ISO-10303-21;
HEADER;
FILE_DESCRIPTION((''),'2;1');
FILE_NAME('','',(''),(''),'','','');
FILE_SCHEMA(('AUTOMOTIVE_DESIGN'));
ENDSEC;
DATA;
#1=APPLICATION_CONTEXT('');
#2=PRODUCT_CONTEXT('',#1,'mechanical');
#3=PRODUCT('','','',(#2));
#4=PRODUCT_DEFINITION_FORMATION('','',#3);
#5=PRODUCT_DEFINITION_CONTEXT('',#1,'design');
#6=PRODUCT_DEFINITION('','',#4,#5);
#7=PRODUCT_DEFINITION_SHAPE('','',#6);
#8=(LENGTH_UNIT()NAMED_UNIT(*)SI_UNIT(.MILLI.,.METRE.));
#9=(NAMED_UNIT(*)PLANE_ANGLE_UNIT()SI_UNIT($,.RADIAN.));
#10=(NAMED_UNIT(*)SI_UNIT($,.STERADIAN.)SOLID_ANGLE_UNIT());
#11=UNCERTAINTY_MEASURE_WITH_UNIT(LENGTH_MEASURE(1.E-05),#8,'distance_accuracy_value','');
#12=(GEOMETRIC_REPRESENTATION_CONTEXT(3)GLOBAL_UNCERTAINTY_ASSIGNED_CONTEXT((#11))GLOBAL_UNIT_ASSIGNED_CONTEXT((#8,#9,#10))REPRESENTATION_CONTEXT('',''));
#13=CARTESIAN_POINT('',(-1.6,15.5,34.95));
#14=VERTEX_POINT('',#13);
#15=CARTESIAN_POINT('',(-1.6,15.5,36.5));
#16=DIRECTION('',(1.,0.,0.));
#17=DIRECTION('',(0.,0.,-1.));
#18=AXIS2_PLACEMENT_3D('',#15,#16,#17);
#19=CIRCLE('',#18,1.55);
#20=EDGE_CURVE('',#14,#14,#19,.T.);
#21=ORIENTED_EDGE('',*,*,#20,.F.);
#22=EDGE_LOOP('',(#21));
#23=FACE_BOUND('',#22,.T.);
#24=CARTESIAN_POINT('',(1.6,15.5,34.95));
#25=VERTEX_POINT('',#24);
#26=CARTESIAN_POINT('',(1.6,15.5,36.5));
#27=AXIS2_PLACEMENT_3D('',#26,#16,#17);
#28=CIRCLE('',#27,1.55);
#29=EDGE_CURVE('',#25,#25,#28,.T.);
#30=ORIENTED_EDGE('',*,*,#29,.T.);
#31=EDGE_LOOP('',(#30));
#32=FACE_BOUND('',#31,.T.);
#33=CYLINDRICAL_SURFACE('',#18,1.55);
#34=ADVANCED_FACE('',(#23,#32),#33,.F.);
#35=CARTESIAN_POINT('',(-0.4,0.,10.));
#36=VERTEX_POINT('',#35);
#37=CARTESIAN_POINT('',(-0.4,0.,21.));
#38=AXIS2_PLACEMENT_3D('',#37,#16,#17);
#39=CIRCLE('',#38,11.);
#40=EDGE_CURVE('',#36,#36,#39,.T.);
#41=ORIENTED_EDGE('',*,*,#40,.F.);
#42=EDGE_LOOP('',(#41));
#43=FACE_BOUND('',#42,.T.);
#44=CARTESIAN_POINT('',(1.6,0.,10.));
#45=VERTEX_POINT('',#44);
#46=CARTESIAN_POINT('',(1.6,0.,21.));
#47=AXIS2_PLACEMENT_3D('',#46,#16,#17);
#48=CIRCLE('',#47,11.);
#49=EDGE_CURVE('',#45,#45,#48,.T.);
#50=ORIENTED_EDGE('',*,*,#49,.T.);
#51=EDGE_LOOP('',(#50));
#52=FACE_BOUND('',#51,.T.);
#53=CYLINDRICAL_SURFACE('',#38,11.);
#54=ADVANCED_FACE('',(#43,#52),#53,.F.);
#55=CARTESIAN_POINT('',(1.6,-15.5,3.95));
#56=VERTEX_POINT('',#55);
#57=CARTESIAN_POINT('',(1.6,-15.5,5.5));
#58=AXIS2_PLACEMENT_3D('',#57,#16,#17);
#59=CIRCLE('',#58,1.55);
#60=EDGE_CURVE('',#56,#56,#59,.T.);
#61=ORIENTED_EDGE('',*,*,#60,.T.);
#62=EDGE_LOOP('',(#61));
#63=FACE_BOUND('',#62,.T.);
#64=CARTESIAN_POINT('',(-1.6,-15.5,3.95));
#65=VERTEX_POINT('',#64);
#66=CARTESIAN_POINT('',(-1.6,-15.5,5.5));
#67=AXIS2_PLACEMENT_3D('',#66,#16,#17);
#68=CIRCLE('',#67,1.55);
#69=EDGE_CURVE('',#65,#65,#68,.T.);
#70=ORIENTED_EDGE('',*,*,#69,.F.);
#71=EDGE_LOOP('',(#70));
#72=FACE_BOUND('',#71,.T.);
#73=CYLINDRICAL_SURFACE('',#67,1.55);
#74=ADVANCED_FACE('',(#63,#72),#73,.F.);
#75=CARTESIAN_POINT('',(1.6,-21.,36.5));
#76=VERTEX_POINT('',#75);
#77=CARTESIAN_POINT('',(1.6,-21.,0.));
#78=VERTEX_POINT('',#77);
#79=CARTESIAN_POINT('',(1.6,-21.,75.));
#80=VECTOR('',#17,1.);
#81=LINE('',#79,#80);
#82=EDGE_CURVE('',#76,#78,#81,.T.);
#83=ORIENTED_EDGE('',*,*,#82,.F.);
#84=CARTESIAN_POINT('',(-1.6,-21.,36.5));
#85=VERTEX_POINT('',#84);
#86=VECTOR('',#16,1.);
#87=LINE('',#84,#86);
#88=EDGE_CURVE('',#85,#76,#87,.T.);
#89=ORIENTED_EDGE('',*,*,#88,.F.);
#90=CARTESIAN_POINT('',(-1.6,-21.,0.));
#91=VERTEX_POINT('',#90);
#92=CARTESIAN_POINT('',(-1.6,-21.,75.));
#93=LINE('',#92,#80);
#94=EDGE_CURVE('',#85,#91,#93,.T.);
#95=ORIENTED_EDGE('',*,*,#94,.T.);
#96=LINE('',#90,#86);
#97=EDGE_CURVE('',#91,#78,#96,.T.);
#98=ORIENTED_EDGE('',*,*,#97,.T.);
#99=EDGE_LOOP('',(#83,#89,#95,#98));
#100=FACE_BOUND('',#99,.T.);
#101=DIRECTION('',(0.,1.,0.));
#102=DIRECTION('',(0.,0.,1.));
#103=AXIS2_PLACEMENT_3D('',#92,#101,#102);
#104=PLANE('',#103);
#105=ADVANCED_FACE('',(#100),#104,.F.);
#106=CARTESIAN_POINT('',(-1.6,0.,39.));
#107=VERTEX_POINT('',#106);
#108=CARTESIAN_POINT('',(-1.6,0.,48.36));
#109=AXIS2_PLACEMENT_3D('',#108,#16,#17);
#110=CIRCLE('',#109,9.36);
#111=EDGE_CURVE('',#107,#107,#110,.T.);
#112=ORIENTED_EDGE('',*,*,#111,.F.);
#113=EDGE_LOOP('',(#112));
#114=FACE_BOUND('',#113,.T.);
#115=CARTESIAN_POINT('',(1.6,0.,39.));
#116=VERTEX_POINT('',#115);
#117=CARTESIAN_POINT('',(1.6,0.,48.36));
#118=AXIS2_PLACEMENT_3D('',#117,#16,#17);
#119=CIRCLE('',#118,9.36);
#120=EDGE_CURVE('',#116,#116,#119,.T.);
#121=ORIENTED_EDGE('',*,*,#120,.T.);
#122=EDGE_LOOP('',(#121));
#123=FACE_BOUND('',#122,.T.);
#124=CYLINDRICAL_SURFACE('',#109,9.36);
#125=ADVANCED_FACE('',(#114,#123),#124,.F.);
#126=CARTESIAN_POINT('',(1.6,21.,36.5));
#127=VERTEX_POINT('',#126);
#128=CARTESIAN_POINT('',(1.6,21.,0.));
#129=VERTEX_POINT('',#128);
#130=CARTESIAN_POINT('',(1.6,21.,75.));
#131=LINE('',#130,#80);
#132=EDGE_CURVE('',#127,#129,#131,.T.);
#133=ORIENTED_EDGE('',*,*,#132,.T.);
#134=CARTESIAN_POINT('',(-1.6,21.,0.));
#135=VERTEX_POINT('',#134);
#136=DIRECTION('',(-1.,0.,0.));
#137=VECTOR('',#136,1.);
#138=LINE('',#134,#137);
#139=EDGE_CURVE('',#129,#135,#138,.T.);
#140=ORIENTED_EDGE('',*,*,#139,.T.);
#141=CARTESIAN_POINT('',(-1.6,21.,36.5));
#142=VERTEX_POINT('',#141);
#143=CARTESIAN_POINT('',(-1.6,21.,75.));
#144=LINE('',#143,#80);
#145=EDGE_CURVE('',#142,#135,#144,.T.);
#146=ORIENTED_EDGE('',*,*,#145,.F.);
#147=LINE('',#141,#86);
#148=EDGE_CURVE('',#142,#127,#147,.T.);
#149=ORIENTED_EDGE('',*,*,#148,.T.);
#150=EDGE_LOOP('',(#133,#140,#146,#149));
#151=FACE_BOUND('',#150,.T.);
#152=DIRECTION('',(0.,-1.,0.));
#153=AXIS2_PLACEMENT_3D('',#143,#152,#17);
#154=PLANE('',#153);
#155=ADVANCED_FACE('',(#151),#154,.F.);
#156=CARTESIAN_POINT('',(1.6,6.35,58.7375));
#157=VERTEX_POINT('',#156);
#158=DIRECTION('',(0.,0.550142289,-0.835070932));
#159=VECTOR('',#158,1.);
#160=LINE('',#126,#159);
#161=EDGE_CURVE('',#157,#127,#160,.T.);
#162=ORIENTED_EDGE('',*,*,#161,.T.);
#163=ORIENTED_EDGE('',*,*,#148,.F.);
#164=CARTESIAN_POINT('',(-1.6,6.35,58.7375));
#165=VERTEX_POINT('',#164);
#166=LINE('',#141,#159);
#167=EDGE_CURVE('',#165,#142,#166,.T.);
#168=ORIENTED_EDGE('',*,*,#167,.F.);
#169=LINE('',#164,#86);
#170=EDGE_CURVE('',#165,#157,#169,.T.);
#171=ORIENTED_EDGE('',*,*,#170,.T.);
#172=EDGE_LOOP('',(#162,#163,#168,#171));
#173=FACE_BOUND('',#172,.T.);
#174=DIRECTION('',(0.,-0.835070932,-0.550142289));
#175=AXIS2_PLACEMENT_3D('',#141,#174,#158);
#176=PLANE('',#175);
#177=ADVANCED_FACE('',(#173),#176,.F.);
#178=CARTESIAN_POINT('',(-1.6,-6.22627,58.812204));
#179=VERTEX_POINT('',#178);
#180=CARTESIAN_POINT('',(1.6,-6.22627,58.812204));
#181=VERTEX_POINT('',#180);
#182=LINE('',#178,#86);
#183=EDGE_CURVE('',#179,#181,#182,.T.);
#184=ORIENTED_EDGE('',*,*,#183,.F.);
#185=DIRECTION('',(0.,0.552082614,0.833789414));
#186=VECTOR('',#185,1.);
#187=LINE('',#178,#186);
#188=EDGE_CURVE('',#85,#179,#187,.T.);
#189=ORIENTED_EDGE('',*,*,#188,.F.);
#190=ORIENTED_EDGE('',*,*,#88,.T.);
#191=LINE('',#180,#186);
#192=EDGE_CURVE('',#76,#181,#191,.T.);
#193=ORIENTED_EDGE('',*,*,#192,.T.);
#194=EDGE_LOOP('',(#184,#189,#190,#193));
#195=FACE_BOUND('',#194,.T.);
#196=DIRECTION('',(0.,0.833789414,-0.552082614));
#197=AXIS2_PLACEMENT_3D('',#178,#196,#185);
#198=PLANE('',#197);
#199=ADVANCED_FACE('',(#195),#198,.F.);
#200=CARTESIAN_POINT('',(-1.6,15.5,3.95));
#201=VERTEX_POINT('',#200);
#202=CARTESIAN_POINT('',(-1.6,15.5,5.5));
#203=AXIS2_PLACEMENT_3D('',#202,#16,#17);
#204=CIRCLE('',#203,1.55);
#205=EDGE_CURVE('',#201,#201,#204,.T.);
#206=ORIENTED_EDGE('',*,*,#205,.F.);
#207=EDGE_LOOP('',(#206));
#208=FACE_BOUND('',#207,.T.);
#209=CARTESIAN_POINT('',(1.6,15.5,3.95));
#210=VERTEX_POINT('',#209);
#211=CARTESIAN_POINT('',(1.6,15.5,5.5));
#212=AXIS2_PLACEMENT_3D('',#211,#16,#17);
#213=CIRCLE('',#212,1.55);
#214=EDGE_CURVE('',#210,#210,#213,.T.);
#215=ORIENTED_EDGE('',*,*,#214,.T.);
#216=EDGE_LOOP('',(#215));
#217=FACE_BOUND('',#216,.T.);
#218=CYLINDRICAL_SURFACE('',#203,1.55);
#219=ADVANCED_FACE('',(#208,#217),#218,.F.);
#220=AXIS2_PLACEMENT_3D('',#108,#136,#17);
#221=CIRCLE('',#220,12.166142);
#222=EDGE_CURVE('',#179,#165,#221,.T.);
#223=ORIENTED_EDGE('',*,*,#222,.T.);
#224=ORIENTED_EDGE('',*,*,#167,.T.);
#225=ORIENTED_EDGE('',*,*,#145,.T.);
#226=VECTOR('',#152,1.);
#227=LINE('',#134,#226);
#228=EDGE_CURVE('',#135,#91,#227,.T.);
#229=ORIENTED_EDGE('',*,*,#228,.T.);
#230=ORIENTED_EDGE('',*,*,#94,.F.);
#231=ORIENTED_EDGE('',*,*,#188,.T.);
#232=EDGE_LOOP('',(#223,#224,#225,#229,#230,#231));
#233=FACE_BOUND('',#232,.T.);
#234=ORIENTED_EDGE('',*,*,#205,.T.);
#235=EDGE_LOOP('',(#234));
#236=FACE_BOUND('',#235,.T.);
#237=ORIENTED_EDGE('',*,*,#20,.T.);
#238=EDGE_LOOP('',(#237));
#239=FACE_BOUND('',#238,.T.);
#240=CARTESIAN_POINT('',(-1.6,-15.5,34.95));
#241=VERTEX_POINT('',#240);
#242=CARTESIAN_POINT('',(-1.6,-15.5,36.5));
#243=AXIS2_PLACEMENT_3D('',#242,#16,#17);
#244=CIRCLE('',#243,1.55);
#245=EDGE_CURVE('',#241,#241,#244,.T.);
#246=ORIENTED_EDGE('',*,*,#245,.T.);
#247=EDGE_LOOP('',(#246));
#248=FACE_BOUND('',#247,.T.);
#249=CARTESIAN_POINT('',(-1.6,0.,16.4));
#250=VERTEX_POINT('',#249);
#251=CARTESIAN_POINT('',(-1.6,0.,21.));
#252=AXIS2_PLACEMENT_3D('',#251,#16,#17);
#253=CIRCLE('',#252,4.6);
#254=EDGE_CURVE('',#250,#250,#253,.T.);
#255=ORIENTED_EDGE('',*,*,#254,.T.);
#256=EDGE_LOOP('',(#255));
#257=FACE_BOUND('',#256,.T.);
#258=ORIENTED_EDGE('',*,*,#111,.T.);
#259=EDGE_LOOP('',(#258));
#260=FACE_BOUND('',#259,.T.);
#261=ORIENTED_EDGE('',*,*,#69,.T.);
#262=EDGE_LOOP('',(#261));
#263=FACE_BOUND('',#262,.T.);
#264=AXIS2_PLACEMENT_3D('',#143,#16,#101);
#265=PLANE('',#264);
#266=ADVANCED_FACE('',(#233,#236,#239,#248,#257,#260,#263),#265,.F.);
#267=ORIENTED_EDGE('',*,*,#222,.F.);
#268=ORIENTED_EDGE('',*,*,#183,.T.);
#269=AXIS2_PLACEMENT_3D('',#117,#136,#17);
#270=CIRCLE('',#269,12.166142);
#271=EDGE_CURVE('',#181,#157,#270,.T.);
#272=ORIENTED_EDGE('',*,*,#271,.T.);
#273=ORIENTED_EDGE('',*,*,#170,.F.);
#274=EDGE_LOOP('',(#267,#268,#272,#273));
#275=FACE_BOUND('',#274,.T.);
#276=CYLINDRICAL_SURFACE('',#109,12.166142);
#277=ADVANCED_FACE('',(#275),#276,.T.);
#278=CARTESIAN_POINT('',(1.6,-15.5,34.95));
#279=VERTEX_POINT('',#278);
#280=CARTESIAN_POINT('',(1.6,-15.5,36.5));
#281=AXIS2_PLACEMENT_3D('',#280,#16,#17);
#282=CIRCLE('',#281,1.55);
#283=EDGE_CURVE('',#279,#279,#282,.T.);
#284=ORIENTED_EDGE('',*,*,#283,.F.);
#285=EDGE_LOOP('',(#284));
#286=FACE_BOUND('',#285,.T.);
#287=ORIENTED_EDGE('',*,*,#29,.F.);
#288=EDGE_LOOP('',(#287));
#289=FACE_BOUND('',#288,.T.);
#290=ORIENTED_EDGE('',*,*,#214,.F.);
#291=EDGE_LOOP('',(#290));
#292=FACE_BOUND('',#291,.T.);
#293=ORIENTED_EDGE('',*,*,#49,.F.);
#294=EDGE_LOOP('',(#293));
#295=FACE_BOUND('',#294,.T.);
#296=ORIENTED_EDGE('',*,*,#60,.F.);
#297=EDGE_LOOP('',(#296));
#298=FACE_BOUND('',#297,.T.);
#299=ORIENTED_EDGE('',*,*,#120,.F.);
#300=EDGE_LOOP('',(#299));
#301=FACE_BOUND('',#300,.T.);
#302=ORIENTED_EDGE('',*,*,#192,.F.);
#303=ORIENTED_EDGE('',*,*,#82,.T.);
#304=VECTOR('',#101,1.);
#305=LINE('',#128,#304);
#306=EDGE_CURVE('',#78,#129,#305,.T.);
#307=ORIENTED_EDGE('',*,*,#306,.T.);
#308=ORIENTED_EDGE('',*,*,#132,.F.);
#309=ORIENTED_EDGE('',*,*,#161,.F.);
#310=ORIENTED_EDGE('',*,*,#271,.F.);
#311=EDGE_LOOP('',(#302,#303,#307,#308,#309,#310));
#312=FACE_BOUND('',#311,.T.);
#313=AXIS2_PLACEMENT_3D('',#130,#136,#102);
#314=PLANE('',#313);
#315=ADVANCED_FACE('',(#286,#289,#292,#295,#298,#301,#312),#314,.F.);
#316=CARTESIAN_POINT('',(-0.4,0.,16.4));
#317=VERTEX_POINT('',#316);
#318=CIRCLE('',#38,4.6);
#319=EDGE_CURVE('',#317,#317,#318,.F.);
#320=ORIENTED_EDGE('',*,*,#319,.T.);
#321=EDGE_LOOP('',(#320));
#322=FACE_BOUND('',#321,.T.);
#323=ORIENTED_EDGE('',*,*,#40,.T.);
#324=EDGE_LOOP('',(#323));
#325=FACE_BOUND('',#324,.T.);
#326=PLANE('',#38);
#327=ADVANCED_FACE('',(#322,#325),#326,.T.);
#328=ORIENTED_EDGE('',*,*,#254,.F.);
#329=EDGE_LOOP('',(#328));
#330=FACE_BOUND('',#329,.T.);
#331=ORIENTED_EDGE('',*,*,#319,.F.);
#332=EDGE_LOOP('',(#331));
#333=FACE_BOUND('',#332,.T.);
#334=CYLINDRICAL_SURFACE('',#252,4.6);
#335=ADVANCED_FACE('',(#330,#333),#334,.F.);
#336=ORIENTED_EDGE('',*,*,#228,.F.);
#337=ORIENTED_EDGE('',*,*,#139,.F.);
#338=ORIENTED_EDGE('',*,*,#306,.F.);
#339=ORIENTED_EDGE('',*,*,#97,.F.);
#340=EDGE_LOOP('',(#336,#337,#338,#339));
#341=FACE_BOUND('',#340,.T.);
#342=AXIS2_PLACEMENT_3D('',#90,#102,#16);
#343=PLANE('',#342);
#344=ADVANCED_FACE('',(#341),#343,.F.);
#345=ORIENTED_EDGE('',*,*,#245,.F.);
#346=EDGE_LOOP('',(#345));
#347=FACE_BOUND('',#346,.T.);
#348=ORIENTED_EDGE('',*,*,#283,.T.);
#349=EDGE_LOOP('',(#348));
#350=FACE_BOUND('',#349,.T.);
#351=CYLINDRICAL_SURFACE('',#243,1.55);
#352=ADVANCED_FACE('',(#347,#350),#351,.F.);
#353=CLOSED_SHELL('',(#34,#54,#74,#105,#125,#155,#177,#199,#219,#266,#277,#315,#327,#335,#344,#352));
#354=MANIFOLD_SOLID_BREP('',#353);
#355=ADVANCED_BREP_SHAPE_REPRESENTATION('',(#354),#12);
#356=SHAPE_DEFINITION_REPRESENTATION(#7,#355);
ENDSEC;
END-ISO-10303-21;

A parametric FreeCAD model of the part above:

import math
import FreeCAD as App
import Part
import Sketcher
Q = App.Units.Quantity

doc = App.newDocument("Part")
body = doc.addObject("PartDesign::Body", "Body")

sketch1 = doc.addObject("Sketcher::SketchObject", "Sketch")
body.addObject(sketch1)
sketch1.AttachmentSupport = (doc.XY_Plane, [""])
sketch1.MapMode = "FlatFace"
sketch1.addGeometry(Part.LineSegment(App.Vector(-1.6, 21, 0), App.Vector(-1.6, -21, 0)), False)
sketch1.addGeometry(Part.LineSegment(App.Vector(-1.6, -21, 0), App.Vector(1.6, -21, 0)), False)
sketch1.addGeometry(Part.LineSegment(App.Vector(1.6, -21, 0), App.Vector(1.6, 21, 0)), False)
sketch1.addGeometry(Part.LineSegment(App.Vector(1.6, 21, 0), App.Vector(-1.6, 21, 0)), False)
sketch1.addConstraint(Sketcher.Constraint("Coincident", 0, 2, 1, 1))
sketch1.addConstraint(Sketcher.Constraint("Coincident", 1, 2, 2, 1))
sketch1.addConstraint(Sketcher.Constraint("Coincident", 2, 2, 3, 1))
sketch1.addConstraint(Sketcher.Constraint("Coincident", 3, 2, 0, 1))
sketch1.addConstraint(Sketcher.Constraint("Vertical", 0))
sketch1.addConstraint(Sketcher.Constraint("Horizontal", 1))
sketch1.addConstraint(Sketcher.Constraint("Vertical", 2))
sketch1.addConstraint(Sketcher.Constraint("Horizontal", 3))
sketch1.addConstraint(Sketcher.Constraint("Symmetric", 0, 2, 2, 2, -1, 1))
sketch1.addConstraint(Sketcher.Constraint("DistanceY", 0, 2, 0, 1, Q("42 mm")))
sketch1.addConstraint(Sketcher.Constraint("DistanceX", 1, 1, 1, 2, Q("3.2 mm")))
pad1 = doc.addObject("PartDesign::Pad", "Pad")
body.addObject(pad1)
pad1.Profile = sketch1
pad1.Length = 75

sketch2 = doc.addObject("Sketcher::SketchObject", "Sketch001")
body.addObject(sketch2)
sketch2.AttachmentSupport = (doc.YZ_Plane, [""])
sketch2.MapMode = "FlatFace"
sketch2.addGeometry(Part.Circle(App.Vector(15.5, 5.5, 0), App.Vector(0, 0, 1), 1.55), False)
sketch2.addGeometry(Part.Circle(App.Vector(-15.5, 5.5, 0), App.Vector(0, 0, 1), 1.55), False)
sketch2.addGeometry(Part.Circle(App.Vector(15.5, 36.5, 0), App.Vector(0, 0, 1), 1.55), False)
sketch2.addGeometry(Part.Circle(App.Vector(-15.5, 36.5, 0), App.Vector(0, 0, 1), 1.55), False)
sketch2.addGeometry(Part.Circle(App.Vector(0, 48.36, 0), App.Vector(0, 0, 1), 9.36), False)
sketch2.addGeometry(Part.Circle(App.Vector(0, 21, 0), App.Vector(0, 0, 1), 4.6), False)
sketch2.addGeometry(Part.LineSegment(App.Vector(6.35, 58.7375, 0), App.Vector(21, 36.5, 0)), False)
sketch2.addGeometry(Part.LineSegment(App.Vector(21, 36.5, 0), App.Vector(21, 75, 0)), False)
sketch2.addGeometry(Part.LineSegment(App.Vector(21, 75, 0), App.Vector(-21, 75, 0)), False)
sketch2.addGeometry(Part.LineSegment(App.Vector(-21, 75, 0), App.Vector(-21, 36.5, 0)), False)
sketch2.addGeometry(Part.LineSegment(App.Vector(-21, 36.5, 0), App.Vector(-6.22627, 58.812204, 0)), False)
sketch2.addGeometry(Part.ArcOfCircle(Part.Circle(App.Vector(0, 48.36, 0), App.Vector(0, 0, 1), 12.166142), math.radians(58.537505), math.radians(120.781818)), False)
sketch2.addConstraint(Sketcher.Constraint("Coincident", 6, 2, 7, 1))
sketch2.addConstraint(Sketcher.Constraint("Coincident", 7, 2, 8, 1))
sketch2.addConstraint(Sketcher.Constraint("Coincident", 8, 2, 9, 1))
sketch2.addConstraint(Sketcher.Constraint("Coincident", 9, 2, 10, 1))
sketch2.addConstraint(Sketcher.Constraint("Coincident", 10, 2, 11, 2))
sketch2.addConstraint(Sketcher.Constraint("Coincident", 11, 1, 6, 1))
sketch2.addConstraint(Sketcher.Constraint("Vertical", 7))
sketch2.addConstraint(Sketcher.Constraint("Horizontal", 8))
sketch2.addConstraint(Sketcher.Constraint("Vertical", 9))
sketch2.addConstraint(Sketcher.Constraint("Coincident", 11, 3, 4, 3))
sketch2.addConstraint(Sketcher.Constraint("Equal", 0, 1))
sketch2.addConstraint(Sketcher.Constraint("Equal", 1, 2))
sketch2.addConstraint(Sketcher.Constraint("Equal", 2, 3))
sketch2.addConstraint(Sketcher.Constraint("Symmetric", 0, 3, 1, 3, -2))
sketch2.addConstraint(Sketcher.Constraint("Symmetric", 2, 3, 3, 3, -2))
sketch2.addConstraint(Sketcher.Constraint("Symmetric", 6, 2, 9, 2, -2))
sketch2.addConstraint(Sketcher.Constraint("PointOnObject", 4, 3, -2))
sketch2.addConstraint(Sketcher.Constraint("PointOnObject", 5, 3, -2))
sketch2.addConstraint(Sketcher.Constraint("Horizontal", 3, 3, 6, 2))
sketch2.addConstraint(Sketcher.Constraint("Vertical", 0, 3, 2, 3))
sketch2.addConstraint(Sketcher.Constraint("Diameter", 0, Q("3.1 mm")))
sketch2.addConstraint(Sketcher.Constraint("Diameter", 5, Q("9.2 mm")))
sketch2.addConstraint(Sketcher.Constraint("Diameter", 4, Q("18.72 mm")))
sketch2.addConstraint(Sketcher.Constraint("DistanceX", 8, 2, 8, 1, Q("42 mm")))
sketch2.addConstraint(Sketcher.Constraint("DistanceY", 7, 1, 7, 2, Q("38.5 mm")))
sketch2.addConstraint(Sketcher.Constraint("DistanceY", -1, 1, 5, 3, Q("21 mm")))
sketch2.addConstraint(Sketcher.Constraint("DistanceY", -1, 1, 7, 2, Q("75 mm")))
sketch2.addConstraint(Sketcher.Constraint("DistanceX", 1, 3, 0, 3, Q("31 mm")))
sketch2.addConstraint(Sketcher.Constraint("DistanceY", 0, 3, 2, 3, Q("31 mm")))
sketch2.addConstraint(Sketcher.Constraint("Angle", 10, Q("56.489993 deg")))
sketch2.addConstraint(Sketcher.Constraint("Distance", 10, Q("26.759999 mm")))
sketch2.addConstraint(Sketcher.Constraint("DistanceY", -1, 1, 4, 3, Q("48.36 mm")))
sketch2.addConstraint(Sketcher.Constraint("DistanceX", -1, 1, 11, 1, Q("6.35 mm")))
pocket1 = doc.addObject("PartDesign::Pocket", "Pocket")
body.addObject(pocket1)
pocket1.Profile = sketch2
pocket1.Type = "ThroughAll"
pocket1.Midplane = True

sketch3 = doc.addObject("Sketcher::SketchObject", "Sketch002")
body.addObject(sketch3)
sketch3.AttachmentSupport = (doc.YZ_Plane, [""])
sketch3.MapMode = "FlatFace"
sketch3.AttachmentOffset = App.Placement(App.Vector(0, 0, 1.6), App.Rotation())
sketch3.addGeometry(Part.Circle(App.Vector(0, 21, 0), App.Vector(0, 0, 1), 11), False)
sketch3.addConstraint(Sketcher.Constraint("PointOnObject", 0, 3, -2))
sketch3.addConstraint(Sketcher.Constraint("Diameter", 0, Q("22 mm")))
sketch3.addConstraint(Sketcher.Constraint("DistanceY", -1, 1, 0, 3, Q("21 mm")))
pocket2 = doc.addObject("PartDesign::Pocket", "Pocket001")
body.addObject(pocket2)
pocket2.Profile = sketch3
pocket2.Length = 2

doc.recompute()
